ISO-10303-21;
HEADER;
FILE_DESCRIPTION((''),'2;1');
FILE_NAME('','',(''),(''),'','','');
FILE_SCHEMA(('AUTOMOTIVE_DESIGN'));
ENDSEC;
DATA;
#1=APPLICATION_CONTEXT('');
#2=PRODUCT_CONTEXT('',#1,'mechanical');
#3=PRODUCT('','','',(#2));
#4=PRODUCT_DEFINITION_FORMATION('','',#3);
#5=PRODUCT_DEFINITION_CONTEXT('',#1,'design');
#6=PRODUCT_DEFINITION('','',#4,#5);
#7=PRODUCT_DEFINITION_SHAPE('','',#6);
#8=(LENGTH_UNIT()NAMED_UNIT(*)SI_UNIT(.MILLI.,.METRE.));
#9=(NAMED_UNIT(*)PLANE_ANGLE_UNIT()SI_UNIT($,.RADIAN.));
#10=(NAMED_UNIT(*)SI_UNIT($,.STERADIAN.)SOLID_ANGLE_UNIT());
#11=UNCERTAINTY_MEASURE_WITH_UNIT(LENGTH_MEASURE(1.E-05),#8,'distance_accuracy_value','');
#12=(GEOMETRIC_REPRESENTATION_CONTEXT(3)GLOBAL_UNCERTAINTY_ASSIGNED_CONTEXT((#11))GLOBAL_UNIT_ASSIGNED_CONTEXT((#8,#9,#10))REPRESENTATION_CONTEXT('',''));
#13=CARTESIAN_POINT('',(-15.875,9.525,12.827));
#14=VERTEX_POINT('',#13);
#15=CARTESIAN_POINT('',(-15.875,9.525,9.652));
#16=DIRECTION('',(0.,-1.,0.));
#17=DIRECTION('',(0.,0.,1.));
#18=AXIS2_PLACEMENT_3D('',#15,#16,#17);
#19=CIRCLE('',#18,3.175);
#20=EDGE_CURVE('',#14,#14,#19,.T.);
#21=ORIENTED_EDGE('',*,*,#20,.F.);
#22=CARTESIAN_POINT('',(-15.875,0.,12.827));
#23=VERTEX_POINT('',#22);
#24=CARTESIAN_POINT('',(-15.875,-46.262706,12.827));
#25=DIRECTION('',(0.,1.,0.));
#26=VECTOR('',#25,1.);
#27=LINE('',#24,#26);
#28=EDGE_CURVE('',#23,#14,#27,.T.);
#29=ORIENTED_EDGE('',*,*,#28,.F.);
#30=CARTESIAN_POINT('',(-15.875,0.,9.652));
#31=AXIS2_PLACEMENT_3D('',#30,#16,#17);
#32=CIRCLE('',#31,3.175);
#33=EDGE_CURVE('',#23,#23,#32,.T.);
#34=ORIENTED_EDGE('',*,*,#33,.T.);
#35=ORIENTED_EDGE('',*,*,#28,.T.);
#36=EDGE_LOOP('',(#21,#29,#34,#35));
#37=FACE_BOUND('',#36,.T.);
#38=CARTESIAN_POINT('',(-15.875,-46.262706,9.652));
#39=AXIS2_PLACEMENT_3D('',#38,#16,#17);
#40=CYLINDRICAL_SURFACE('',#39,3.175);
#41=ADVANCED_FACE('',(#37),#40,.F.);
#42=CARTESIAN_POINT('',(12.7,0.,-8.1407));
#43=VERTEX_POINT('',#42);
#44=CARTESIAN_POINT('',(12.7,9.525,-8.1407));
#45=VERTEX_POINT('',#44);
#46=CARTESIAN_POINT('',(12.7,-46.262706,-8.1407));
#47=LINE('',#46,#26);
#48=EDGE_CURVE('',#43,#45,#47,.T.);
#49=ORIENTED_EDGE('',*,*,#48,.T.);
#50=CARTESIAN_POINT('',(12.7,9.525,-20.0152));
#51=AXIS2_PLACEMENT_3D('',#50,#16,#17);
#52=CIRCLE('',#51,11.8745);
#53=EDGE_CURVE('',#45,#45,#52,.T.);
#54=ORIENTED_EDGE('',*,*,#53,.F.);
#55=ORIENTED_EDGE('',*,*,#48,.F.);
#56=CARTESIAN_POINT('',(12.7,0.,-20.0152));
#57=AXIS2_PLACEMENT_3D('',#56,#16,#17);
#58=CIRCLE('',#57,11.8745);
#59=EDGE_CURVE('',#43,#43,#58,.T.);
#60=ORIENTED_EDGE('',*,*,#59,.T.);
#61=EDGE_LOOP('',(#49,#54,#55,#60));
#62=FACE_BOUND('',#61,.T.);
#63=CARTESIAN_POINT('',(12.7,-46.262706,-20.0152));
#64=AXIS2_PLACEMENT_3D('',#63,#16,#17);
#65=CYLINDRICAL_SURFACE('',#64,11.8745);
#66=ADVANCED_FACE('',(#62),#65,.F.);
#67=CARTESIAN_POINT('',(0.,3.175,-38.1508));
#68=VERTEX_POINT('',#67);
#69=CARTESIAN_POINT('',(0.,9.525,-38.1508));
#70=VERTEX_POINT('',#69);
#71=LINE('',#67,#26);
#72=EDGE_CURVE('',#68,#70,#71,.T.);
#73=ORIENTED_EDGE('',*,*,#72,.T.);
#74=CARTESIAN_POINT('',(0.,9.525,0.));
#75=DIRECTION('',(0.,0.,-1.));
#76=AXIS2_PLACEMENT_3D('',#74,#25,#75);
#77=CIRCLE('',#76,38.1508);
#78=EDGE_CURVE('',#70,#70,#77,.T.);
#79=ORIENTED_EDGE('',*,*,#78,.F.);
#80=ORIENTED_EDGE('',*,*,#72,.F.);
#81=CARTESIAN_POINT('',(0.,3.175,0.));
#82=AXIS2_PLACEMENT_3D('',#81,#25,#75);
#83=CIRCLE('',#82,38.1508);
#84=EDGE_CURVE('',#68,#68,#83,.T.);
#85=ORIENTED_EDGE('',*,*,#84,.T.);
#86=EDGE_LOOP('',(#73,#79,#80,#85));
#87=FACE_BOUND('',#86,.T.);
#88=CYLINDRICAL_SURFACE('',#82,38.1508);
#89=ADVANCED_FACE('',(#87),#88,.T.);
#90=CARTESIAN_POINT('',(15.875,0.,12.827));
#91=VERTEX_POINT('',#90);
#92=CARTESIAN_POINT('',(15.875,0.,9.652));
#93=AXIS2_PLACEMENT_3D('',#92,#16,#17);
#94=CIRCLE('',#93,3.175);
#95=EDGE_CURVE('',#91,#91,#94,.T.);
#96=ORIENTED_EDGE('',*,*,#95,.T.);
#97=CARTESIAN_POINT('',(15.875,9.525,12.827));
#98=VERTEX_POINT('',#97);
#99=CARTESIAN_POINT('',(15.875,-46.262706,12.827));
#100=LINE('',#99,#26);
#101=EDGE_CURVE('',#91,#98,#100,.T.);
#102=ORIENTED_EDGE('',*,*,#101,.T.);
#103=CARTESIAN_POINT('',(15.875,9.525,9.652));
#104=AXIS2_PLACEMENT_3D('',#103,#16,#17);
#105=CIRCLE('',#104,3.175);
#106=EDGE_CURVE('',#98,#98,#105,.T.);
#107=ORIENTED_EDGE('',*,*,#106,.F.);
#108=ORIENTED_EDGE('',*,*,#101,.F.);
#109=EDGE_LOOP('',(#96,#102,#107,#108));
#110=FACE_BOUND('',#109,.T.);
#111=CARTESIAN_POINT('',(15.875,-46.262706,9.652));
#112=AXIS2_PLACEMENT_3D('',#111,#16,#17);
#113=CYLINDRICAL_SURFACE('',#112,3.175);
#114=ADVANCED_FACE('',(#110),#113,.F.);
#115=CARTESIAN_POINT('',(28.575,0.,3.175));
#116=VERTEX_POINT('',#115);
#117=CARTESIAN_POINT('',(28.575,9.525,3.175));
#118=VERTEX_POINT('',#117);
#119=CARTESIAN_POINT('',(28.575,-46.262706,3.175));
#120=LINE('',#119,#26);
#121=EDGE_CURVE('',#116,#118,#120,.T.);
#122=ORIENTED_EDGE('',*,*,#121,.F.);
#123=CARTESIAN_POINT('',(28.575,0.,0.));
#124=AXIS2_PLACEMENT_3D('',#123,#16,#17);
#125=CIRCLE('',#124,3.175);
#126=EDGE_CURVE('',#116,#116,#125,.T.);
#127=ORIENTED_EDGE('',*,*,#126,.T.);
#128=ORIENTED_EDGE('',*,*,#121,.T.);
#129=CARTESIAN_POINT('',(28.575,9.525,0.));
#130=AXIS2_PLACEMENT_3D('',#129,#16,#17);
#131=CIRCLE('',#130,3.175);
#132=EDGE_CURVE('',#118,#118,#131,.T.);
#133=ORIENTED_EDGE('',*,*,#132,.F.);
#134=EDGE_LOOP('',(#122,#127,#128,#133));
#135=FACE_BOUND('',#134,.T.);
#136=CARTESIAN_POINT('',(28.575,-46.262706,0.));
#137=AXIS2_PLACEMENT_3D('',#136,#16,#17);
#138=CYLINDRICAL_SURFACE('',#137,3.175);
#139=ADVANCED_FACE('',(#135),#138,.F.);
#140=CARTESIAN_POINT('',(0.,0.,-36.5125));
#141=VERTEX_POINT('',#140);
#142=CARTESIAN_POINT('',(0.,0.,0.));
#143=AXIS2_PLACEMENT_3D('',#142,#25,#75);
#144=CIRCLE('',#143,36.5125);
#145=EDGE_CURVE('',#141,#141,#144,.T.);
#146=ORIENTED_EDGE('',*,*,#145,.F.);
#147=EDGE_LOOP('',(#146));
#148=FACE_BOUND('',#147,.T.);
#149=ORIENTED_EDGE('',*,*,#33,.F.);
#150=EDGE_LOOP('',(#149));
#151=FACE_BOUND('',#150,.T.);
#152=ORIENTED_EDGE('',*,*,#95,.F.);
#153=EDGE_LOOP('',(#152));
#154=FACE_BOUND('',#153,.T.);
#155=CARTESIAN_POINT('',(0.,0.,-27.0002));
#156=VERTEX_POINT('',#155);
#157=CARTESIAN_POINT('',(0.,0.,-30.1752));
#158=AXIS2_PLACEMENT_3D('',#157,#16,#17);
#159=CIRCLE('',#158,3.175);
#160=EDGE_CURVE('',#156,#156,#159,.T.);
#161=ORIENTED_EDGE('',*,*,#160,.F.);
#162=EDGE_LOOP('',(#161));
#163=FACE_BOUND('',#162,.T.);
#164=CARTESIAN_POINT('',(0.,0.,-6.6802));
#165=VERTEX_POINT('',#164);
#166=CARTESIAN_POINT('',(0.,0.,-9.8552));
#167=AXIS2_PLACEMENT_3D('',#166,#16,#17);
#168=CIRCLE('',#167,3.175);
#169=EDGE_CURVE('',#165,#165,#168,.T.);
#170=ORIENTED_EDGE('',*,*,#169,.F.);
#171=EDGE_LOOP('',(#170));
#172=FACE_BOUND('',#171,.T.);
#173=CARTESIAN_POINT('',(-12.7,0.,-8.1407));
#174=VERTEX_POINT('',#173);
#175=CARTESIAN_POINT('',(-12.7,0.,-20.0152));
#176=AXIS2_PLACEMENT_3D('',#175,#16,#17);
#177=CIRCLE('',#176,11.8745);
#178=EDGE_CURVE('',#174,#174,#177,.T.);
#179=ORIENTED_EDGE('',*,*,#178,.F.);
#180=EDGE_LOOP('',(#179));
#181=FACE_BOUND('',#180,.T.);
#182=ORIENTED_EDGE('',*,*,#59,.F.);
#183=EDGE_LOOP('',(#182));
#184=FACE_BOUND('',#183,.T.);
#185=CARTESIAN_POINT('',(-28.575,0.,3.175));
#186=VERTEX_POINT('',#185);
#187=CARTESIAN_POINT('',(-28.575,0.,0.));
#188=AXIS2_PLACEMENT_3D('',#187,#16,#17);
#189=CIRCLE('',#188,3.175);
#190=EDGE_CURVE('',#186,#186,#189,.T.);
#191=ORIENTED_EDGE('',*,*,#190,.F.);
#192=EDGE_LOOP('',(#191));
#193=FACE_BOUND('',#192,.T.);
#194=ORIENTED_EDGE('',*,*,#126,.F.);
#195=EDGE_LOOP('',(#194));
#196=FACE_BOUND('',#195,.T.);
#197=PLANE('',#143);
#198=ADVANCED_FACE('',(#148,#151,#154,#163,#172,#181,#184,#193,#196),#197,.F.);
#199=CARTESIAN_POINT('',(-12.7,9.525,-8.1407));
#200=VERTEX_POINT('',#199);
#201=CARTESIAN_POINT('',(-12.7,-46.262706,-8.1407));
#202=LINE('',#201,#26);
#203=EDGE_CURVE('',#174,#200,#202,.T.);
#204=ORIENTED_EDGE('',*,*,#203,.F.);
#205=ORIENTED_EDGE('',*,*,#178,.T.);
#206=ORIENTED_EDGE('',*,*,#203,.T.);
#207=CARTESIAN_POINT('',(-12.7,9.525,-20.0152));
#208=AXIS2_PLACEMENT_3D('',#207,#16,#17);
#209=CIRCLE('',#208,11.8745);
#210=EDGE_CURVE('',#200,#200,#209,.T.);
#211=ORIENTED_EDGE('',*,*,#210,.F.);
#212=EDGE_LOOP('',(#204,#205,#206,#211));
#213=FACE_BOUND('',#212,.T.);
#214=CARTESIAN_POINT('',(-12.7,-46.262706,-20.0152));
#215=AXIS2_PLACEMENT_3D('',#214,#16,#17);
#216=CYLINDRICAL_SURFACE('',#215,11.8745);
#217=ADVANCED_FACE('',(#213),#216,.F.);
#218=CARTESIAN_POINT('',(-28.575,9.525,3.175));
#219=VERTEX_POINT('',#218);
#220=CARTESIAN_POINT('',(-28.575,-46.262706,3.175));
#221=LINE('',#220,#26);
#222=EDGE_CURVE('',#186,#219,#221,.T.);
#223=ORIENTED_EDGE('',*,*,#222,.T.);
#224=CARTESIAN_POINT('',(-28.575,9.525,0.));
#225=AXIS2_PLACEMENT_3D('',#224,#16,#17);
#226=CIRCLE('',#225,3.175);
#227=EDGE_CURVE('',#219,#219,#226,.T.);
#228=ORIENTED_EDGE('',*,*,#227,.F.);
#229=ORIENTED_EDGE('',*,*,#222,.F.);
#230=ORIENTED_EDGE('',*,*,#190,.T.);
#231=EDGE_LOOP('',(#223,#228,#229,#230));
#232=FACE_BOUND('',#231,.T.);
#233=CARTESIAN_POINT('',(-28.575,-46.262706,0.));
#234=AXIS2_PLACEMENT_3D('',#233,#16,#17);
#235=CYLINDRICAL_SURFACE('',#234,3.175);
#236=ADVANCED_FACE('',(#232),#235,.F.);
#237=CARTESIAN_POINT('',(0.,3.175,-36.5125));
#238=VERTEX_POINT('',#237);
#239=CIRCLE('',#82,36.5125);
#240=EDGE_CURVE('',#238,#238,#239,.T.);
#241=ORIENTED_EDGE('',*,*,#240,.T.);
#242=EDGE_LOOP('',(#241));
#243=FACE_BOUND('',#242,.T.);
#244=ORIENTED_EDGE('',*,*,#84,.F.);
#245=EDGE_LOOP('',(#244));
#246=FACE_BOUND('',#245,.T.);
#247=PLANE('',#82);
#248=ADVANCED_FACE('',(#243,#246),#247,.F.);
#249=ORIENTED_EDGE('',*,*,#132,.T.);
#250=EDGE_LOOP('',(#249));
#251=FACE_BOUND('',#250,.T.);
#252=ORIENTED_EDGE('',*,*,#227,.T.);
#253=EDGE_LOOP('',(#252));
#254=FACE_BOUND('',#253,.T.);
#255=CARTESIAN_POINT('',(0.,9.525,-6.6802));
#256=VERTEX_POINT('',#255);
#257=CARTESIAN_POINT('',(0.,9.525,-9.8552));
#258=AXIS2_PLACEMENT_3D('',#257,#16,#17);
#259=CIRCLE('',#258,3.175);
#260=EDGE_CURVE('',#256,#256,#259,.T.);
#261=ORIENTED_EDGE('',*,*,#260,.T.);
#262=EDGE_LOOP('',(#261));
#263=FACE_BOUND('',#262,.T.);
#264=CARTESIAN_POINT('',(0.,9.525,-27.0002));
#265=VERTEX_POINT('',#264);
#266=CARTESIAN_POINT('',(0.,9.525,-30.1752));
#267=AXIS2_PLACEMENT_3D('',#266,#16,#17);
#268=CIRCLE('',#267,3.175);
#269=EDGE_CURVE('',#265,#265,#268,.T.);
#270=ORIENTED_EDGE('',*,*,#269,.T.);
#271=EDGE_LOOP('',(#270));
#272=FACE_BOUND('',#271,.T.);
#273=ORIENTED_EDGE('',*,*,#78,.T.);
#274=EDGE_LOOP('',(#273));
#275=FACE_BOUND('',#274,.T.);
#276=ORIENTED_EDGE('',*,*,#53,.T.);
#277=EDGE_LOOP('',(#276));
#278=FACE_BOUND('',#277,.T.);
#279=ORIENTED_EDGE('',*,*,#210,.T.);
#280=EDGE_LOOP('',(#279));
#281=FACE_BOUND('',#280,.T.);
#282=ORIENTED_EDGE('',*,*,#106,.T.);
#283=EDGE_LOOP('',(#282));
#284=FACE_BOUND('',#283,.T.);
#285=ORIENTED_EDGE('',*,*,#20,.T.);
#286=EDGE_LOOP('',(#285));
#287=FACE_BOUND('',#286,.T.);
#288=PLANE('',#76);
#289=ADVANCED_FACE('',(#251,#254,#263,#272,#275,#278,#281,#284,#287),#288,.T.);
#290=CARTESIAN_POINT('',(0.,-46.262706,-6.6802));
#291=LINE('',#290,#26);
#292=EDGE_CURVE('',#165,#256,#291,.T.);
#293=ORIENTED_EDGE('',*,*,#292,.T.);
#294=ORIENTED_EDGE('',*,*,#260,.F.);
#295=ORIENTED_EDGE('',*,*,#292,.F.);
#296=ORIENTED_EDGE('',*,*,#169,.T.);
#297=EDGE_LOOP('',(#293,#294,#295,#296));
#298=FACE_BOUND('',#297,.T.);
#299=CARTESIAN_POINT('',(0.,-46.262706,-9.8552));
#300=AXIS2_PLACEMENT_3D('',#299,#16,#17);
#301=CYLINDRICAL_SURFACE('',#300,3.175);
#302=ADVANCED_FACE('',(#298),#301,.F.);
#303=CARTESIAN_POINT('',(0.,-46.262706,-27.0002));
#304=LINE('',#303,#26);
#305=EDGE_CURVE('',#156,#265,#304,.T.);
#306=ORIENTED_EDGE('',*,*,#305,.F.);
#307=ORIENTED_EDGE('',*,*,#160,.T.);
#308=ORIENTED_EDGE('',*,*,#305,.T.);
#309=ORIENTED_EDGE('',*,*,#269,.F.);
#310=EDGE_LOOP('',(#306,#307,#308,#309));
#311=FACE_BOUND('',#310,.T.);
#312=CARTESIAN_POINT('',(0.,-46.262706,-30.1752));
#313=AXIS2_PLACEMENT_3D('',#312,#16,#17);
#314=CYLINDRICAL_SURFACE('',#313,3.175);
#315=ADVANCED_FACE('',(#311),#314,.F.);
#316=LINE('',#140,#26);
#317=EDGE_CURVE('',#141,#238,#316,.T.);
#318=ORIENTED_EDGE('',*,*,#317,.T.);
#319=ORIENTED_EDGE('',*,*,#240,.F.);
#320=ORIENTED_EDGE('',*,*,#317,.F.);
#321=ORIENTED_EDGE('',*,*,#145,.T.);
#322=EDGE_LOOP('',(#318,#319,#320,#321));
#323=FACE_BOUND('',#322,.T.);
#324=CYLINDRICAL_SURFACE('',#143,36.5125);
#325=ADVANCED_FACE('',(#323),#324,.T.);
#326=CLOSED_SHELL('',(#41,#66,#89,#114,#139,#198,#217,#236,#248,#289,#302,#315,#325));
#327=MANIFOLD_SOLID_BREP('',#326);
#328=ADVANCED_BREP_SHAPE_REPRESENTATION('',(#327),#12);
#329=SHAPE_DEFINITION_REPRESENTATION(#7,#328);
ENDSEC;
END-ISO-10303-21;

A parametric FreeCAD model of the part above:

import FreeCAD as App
import Part
import Sketcher
Q = App.Units.Quantity

doc = App.newDocument("Part")
body = doc.addObject("PartDesign::Body", "Body")

sketch1 = doc.addObject("Sketcher::SketchObject", "Sketch")
body.addObject(sketch1)
sketch1.AttachmentSupport = (doc.XY_Plane, [""])
sketch1.MapMode = "FlatFace"
sketch1.addGeometry([
    Part.LineSegment(App.Vector(0, 0, 0), App.Vector(36.5125, 0, 0)),
    Part.LineSegment(App.Vector(36.5125, 0, 0), App.Vector(36.5125, 3.175, 0)),
    Part.LineSegment(App.Vector(36.5125, 3.175, 0), App.Vector(38.1508, 3.175, 0)),
    Part.LineSegment(App.Vector(38.1508, 3.175, 0), App.Vector(38.1508, 9.525, 0)),
    Part.LineSegment(App.Vector(38.1508, 9.525, 0), App.Vector(0, 9.525, 0)),
    Part.LineSegment(App.Vector(0, 9.525, 0), App.Vector(0, 0, 0)),
], False)
sketch1.addConstraint([
    Sketcher.Constraint("Coincident", 0, 2, 1, 1),
    Sketcher.Constraint("Coincident", 1, 2, 2, 1),
    Sketcher.Constraint("Coincident", 2, 2, 3, 1),
    Sketcher.Constraint("Coincident", 3, 2, 4, 1),
    Sketcher.Constraint("Coincident", 4, 2, 5, 1),
    Sketcher.Constraint("Coincident", 5, 2, 0, 1),
    Sketcher.Constraint("Horizontal", 0),
    Sketcher.Constraint("Vertical", 1),
    Sketcher.Constraint("Horizontal", 2),
    Sketcher.Constraint("Vertical", 3),
    Sketcher.Constraint("Horizontal", 4),
    Sketcher.Constraint("Vertical", 5),
    Sketcher.Constraint("Coincident", 5, 2, -1, 1),
    Sketcher.Constraint("DistanceY", 3, 1, 3, 2, Q("0.25 in")),
    Sketcher.Constraint("DistanceX", 0, 1, 0, 2, Q("1.4375 in")),
    Sketcher.Constraint("DistanceX", 4, 2, 4, 1, Q("1.502 in")),
    Sketcher.Constraint("DistanceY", 1, 1, 1, 2, Q("0.125 in")),
])
revolution = doc.addObject("PartDesign::Revolution", "Revolution")
body.addObject(revolution)
revolution.Profile = sketch1
revolution.ReferenceAxis = (sketch1, ["V_Axis"])
revolution.Angle = 360

sketch2 = doc.addObject("Sketcher::SketchObject", "Sketch001")
body.addObject(sketch2)
sketch2.AttachmentSupport = (doc.XZ_Plane, [""])
sketch2.MapMode = "FlatFace"
sketch2.AttachmentOffset = App.Placement(App.Vector(0, 0, -0.375 * 25.4), App.Rotation())
sketch2.addGeometry([
    Part.Circle(App.Vector(-12.7, -20.0152, 0), App.Vector(0, 0, 1), 11.8745),
    Part.Circle(App.Vector(12.7, -20.0152, 0), App.Vector(0, 0, 1), 11.8745),
    Part.Circle(App.Vector(0, -30.1752, 0), App.Vector(0, 0, 1), 3.175),
    Part.Circle(App.Vector(0, -9.8552, 0), App.Vector(0, 0, 1), 3.175),
], False)
sketch2.addConstraint([
    Sketcher.Constraint("Equal", 0, 1),
    Sketcher.Constraint("Equal", 2, 3),
    Sketcher.Constraint("Symmetric", 0, 3, 1, 3, -2),
    Sketcher.Constraint("PointOnObject", 2, 3, -2),
    Sketcher.Constraint("PointOnObject", 3, 3, -2),
    Sketcher.Constraint("Diameter", 2, Q("0.25 in")),
    Sketcher.Constraint("Diameter", 0, Q("0.935 in")),
    Sketcher.Constraint("DistanceX", 0, 3, 1, 3, Q("1 in")),
    Sketcher.Constraint("DistanceY", 2, 3, 0, 3, Q("0.4 in")),
    Sketcher.Constraint("DistanceY", 0, 3, 3, 3, Q("0.4 in")),
    Sketcher.Constraint("DistanceY", 0, 3, -1, 1, Q("0.788 in")),
])
pocket1 = doc.addObject("PartDesign::Pocket", "Pocket")
body.addObject(pocket1)
pocket1.Profile = sketch2
pocket1.Type = "ThroughAll"
pocket1.Midplane = True

sketch3 = doc.addObject("Sketcher::SketchObject", "Sketch002")
body.addObject(sketch3)
sketch3.AttachmentSupport = (doc.XZ_Plane, [""])
sketch3.MapMode = "FlatFace"
sketch3.AttachmentOffset = App.Placement(App.Vector(0, 0, -0.375 * 25.4), App.Rotation())
sketch3.addGeometry([
    Part.Circle(App.Vector(-28.575, 0, 0), App.Vector(0, 0, 1), 3.175),
    Part.Circle(App.Vector(28.575, 0, 0), App.Vector(0, 0, 1), 3.175),
], False)
sketch3.addConstraint([
    Sketcher.Constraint("Equal", 0, 1),
    Sketcher.Constraint("Symmetric", 0, 3, 1, 3, -1, 1),
    Sketcher.Constraint("PointOnObject", 0, 3, -1),
    Sketcher.Constraint("Diameter", 0, Q("0.25 in")),
    Sketcher.Constraint("DistanceX", 0, 3, 1, 3, Q("2.25 in")),
])
pocket2 = doc.addObject("PartDesign::Pocket", "Pocket001")
body.addObject(pocket2)
pocket2.Profile = sketch3
pocket2.Type = "ThroughAll"
pocket2.Midplane = True

sketch4 = doc.addObject("Sketcher::SketchObject", "Sketch003")
body.addObject(sketch4)
sketch4.AttachmentSupport = (doc.XZ_Plane, [""])
sketch4.MapMode = "FlatFace"
sketch4.AttachmentOffset = App.Placement(App.Vector(0, 0, -0.375 * 25.4), App.Rotation())
sketch4.addGeometry([
    Part.Circle(App.Vector(-15.875, 9.652, 0), App.Vector(0, 0, 1), 3.175),
    Part.Circle(App.Vector(15.875, 9.652, 0), App.Vector(0, 0, 1), 3.175),
], False)
sketch4.addConstraint([
    Sketcher.Constraint("Equal", 0, 1),
    Sketcher.Constraint("Symmetric", 0, 3, 1, 3, -2),
    Sketcher.Constraint("Diameter", 0, Q("0.25 in")),
    Sketcher.Constraint("DistanceY", -1, 1, 0, 3, Q("0.38 in")),
    Sketcher.Constraint("DistanceX", 0, 3, 1, 3, Q("1.25 in")),
])
pocket3 = doc.addObject("PartDesign::Pocket", "Pocket002")
body.addObject(pocket3)
pocket3.Profile = sketch4
pocket3.Type = "ThroughAll"
pocket3.Midplane = True

doc.recompute()
